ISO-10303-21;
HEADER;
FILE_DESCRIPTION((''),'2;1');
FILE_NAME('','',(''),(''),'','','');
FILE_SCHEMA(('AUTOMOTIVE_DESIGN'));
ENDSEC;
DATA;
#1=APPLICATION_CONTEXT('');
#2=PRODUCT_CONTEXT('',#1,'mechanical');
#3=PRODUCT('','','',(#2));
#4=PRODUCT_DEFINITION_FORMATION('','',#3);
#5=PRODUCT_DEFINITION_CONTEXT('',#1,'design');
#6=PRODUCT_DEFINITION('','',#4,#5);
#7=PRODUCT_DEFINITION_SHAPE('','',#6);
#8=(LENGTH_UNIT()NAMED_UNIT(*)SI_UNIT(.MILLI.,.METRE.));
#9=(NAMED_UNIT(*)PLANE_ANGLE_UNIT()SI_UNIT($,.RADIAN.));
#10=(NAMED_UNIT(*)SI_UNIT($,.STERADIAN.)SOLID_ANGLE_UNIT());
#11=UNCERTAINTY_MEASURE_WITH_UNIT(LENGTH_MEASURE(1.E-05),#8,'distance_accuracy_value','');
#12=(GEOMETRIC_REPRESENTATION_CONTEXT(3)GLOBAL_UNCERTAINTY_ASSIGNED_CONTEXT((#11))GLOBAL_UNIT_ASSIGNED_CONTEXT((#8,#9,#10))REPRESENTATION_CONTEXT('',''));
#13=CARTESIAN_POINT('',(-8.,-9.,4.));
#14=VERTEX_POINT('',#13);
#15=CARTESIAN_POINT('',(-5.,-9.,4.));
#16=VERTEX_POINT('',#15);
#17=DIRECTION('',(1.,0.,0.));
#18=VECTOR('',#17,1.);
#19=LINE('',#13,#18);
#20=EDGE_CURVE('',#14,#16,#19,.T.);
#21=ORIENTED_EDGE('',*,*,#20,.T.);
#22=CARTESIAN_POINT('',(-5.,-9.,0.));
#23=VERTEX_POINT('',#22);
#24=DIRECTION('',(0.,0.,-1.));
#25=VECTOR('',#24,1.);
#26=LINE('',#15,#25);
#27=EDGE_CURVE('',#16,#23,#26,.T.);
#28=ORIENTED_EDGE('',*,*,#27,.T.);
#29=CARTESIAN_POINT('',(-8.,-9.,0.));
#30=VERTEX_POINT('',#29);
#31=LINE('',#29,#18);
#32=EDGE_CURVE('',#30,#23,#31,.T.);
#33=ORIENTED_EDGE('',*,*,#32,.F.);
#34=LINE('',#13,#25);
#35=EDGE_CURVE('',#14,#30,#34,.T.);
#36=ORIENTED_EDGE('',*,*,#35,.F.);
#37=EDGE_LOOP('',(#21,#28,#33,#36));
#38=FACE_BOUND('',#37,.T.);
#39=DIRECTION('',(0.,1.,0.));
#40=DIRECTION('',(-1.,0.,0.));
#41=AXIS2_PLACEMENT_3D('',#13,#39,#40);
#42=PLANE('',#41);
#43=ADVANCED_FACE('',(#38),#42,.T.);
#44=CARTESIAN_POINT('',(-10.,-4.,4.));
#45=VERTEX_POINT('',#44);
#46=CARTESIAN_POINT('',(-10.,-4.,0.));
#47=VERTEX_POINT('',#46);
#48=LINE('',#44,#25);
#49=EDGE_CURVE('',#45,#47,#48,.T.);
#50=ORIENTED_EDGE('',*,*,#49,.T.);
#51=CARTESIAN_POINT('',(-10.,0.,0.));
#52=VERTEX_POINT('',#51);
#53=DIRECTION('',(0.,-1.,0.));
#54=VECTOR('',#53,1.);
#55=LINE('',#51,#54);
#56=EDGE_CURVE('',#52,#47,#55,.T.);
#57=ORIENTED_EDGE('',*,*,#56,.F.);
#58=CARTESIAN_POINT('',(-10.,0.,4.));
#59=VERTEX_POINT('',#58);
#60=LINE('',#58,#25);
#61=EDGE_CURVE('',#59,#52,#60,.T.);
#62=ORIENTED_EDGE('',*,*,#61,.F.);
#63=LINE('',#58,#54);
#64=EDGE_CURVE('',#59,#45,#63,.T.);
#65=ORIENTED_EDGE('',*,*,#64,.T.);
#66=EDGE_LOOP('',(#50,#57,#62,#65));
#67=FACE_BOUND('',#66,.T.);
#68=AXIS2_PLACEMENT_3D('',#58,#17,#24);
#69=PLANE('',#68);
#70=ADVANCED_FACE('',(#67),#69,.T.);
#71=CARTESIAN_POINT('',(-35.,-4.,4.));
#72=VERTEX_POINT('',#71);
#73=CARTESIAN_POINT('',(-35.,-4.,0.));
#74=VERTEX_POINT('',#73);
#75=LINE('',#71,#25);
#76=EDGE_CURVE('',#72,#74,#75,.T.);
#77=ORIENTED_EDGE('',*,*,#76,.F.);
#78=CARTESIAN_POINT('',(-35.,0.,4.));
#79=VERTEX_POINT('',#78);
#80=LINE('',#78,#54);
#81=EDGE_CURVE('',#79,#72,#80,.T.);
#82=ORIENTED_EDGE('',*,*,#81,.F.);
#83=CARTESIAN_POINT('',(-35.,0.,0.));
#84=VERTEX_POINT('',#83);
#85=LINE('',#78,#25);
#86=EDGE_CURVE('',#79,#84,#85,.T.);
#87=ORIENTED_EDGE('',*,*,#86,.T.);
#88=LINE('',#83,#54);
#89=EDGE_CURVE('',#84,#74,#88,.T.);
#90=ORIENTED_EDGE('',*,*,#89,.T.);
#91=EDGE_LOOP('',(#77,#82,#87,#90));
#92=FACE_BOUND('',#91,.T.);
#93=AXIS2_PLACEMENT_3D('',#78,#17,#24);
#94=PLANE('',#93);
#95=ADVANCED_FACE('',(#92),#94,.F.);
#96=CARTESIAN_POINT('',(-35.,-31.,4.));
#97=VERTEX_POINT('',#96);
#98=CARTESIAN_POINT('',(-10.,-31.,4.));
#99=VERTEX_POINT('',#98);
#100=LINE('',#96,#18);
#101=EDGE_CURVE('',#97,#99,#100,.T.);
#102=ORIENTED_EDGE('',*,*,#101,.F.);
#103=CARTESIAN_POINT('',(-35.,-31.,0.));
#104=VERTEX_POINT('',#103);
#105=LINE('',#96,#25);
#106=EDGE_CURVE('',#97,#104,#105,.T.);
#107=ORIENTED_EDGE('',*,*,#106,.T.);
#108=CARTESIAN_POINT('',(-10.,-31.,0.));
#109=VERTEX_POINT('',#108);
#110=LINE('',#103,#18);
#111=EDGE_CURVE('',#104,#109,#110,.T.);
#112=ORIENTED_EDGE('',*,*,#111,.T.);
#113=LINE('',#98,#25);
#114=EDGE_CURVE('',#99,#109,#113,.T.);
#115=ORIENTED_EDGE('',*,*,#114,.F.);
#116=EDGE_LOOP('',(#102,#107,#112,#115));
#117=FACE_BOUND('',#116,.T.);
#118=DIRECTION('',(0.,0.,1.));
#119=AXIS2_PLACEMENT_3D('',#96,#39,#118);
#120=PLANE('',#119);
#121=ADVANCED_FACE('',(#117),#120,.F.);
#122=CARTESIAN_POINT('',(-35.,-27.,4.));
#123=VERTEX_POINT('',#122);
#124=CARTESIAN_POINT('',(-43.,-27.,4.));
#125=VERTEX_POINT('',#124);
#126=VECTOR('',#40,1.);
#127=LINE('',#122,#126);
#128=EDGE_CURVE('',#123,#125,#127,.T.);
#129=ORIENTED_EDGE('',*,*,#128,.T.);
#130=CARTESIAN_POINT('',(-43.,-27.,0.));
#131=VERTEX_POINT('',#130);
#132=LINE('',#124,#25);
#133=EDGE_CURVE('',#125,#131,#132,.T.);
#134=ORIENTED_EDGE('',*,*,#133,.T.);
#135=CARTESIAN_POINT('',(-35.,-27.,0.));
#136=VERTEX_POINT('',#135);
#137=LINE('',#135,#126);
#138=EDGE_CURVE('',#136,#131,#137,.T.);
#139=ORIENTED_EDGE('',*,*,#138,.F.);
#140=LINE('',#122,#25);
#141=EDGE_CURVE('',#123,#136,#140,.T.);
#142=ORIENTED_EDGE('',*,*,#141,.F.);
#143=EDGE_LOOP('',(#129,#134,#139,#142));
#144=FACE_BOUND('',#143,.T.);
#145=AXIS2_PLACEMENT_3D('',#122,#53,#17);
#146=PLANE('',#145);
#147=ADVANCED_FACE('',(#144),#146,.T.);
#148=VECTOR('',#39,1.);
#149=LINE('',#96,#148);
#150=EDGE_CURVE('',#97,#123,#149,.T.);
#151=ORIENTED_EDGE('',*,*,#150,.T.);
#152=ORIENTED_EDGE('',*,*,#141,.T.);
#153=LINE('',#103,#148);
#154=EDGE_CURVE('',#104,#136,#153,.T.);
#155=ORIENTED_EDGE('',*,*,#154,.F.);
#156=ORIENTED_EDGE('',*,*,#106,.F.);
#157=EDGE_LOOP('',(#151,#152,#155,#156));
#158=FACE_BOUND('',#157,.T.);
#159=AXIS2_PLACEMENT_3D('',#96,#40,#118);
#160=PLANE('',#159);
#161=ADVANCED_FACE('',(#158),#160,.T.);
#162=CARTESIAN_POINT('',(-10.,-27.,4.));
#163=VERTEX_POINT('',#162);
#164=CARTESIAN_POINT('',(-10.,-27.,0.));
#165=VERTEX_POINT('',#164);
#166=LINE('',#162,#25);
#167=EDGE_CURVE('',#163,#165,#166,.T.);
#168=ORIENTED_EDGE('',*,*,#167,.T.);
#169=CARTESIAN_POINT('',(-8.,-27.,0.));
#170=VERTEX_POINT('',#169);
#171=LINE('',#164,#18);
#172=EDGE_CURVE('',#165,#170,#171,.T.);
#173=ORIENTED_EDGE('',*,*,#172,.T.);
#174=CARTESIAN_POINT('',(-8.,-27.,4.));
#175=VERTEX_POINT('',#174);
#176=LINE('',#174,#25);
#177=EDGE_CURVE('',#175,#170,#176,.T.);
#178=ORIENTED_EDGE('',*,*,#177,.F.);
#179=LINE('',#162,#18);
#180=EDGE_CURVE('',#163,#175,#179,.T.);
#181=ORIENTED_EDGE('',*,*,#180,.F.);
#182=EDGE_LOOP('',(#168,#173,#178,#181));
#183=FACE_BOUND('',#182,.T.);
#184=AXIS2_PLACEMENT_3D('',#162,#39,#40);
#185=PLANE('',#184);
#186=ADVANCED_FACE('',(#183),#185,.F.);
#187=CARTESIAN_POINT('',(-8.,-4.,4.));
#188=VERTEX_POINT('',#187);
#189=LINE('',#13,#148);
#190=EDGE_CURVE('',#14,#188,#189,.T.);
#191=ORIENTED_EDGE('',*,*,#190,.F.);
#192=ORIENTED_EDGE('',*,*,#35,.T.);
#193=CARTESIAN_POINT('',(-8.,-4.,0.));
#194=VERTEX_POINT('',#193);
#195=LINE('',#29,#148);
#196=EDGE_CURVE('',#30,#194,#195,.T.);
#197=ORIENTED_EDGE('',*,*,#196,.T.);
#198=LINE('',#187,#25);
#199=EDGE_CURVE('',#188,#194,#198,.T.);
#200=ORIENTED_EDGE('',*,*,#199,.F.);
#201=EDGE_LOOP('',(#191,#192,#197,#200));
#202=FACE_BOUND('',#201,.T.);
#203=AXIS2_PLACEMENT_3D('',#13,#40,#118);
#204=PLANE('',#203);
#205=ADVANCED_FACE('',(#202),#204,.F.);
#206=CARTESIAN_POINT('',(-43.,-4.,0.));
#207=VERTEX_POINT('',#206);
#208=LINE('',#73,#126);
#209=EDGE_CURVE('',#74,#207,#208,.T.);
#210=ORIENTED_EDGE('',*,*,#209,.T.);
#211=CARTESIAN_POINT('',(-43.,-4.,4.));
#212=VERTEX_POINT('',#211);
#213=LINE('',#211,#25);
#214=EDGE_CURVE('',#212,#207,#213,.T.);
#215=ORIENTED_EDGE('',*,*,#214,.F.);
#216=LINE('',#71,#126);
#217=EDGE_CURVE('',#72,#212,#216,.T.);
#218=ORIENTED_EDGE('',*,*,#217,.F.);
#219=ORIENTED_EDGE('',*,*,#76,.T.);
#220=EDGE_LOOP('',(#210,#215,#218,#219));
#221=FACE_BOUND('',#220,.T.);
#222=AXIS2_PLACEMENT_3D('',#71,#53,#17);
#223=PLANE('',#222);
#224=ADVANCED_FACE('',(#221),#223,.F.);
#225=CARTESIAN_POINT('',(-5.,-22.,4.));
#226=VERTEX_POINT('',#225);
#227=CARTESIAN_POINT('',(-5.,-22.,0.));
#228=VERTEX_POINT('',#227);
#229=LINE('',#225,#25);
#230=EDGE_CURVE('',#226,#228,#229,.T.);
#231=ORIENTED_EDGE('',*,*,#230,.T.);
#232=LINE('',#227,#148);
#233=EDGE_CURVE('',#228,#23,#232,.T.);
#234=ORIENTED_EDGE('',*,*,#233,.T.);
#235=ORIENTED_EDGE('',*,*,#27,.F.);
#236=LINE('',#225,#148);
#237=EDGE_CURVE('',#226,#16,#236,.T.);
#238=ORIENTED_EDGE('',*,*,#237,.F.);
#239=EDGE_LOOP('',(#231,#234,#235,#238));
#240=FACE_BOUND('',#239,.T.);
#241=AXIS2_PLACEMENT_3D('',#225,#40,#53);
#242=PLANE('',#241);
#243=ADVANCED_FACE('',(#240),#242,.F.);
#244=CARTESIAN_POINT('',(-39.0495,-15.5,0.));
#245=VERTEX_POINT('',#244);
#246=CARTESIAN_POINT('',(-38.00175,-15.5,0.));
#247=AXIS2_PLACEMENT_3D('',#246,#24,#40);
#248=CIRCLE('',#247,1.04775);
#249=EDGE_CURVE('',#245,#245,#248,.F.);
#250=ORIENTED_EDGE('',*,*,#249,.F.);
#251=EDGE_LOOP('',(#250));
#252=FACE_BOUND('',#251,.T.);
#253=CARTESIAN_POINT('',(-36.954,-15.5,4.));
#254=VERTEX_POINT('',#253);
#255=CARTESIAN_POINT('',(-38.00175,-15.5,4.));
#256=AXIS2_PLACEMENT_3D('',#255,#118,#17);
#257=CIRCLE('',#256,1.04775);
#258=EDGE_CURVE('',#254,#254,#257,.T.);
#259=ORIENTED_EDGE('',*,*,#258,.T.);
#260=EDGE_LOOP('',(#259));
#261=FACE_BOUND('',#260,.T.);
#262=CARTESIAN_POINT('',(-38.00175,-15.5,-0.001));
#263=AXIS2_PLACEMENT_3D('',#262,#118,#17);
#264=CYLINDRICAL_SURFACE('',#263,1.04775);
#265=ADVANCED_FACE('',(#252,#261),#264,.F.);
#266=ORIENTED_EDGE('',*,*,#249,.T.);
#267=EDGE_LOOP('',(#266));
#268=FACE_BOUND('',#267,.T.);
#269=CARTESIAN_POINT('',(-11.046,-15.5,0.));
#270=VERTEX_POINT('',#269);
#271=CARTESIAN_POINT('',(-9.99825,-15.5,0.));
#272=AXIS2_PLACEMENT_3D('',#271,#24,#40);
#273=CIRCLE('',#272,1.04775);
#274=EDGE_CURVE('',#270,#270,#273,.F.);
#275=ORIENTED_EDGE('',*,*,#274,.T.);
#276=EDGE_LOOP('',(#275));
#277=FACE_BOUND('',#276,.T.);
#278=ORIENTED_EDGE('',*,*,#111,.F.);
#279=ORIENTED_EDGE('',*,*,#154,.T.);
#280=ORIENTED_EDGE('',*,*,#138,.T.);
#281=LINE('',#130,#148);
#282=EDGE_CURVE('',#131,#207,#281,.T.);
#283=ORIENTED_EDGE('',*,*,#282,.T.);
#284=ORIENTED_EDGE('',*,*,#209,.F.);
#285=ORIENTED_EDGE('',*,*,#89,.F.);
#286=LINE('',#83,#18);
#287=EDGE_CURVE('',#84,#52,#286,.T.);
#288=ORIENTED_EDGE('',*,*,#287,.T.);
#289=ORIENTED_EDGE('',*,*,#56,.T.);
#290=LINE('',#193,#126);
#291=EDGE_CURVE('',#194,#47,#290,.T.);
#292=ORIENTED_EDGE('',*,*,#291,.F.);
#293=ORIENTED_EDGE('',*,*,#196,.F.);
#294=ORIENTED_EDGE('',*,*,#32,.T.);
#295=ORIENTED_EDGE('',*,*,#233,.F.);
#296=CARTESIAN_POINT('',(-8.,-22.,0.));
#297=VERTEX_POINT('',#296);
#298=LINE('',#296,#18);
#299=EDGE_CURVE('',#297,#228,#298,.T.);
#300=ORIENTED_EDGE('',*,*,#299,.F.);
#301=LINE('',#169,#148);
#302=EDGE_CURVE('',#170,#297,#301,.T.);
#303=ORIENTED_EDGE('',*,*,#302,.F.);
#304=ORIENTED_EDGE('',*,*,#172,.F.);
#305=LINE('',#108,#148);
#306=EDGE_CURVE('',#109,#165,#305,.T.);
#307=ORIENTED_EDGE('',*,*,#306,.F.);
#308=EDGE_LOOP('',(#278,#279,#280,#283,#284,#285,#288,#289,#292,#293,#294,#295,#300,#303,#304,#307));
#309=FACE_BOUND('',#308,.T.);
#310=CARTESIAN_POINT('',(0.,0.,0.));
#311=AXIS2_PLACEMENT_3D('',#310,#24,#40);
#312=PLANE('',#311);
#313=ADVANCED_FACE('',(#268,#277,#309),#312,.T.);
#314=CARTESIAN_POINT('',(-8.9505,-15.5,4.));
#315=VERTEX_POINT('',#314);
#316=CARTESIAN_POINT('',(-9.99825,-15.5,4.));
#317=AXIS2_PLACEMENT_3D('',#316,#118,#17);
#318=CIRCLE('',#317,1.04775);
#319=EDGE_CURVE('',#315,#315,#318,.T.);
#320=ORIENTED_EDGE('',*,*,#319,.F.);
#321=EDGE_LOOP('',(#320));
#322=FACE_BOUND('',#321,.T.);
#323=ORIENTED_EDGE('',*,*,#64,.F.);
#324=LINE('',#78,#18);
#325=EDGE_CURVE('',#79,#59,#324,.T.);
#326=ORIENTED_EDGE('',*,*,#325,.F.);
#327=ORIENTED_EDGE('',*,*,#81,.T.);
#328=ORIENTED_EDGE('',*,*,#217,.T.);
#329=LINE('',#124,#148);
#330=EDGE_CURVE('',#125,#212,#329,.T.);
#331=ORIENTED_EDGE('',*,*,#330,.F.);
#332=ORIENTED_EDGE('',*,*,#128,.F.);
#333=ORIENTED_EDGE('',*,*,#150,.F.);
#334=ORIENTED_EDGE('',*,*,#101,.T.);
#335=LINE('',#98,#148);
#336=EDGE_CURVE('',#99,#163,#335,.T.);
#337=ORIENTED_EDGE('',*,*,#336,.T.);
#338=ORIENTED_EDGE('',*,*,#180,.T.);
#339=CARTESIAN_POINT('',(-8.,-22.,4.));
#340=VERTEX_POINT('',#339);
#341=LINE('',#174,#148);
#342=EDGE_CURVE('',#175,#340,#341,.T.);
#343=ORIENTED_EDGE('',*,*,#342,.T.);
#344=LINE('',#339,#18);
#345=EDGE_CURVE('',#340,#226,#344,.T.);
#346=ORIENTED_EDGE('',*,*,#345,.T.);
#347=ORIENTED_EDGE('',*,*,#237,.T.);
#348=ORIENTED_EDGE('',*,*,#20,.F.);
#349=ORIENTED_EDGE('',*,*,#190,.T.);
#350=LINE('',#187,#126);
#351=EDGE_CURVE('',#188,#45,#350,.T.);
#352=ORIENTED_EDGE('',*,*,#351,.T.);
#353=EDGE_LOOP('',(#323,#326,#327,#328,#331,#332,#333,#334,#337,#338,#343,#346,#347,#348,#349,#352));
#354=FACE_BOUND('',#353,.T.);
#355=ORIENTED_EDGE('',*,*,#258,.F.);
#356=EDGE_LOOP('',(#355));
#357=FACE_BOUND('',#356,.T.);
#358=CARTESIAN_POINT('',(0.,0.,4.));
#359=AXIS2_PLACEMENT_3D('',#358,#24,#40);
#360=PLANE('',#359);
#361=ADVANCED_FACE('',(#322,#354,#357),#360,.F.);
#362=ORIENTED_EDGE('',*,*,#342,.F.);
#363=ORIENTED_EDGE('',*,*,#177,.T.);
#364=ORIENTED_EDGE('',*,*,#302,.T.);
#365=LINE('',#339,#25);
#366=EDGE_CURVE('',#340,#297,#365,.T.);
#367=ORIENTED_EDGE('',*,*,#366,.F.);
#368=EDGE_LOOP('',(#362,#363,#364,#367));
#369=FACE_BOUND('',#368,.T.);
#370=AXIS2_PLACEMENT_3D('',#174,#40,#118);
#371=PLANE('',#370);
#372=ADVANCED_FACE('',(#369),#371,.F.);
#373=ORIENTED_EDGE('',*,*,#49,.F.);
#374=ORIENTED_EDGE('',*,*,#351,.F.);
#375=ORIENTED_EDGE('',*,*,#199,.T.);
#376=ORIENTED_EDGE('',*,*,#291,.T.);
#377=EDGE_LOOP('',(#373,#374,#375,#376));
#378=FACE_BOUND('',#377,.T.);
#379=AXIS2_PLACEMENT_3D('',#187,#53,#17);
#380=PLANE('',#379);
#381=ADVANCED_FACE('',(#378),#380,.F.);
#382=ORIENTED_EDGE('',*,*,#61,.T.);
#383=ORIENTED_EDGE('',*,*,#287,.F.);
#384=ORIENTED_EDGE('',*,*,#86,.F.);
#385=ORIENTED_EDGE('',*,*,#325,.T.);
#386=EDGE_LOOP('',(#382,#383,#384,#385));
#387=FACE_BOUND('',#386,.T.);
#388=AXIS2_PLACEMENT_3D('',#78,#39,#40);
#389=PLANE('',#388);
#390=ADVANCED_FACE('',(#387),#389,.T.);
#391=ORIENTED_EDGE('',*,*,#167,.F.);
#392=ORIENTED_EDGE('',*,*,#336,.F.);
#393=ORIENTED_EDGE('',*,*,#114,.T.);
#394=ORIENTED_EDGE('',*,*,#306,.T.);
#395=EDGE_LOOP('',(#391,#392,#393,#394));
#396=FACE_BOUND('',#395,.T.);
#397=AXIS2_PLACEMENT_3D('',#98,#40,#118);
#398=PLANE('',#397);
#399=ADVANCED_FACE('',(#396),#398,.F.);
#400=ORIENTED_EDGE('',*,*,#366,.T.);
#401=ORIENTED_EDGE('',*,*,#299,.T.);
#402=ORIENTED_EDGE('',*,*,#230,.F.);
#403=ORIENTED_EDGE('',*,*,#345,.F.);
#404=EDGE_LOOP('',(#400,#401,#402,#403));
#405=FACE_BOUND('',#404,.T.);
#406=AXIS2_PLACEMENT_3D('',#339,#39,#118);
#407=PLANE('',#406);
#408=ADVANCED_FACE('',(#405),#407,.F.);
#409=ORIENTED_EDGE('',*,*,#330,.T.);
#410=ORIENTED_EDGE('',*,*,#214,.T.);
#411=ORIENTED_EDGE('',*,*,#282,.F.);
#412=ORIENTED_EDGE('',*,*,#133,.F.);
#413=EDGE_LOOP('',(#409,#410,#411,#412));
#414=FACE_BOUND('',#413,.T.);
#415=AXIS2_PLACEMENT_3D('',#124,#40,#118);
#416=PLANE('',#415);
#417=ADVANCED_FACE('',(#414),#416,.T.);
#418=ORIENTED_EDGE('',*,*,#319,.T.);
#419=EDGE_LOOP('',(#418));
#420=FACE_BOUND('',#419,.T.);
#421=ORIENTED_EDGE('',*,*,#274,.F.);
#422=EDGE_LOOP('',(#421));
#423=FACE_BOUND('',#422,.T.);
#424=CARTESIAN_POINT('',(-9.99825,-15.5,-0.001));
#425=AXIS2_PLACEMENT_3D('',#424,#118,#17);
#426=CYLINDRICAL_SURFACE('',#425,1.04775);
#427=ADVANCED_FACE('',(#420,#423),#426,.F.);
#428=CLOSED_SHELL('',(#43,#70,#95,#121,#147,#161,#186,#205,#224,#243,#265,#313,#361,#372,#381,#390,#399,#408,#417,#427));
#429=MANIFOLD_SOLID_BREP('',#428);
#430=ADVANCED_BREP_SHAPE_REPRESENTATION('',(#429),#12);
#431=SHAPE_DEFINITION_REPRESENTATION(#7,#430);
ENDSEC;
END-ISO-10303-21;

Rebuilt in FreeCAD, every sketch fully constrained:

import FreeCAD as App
import Part
import Sketcher
from FreeCAD import Vector

doc = App.newDocument("Part")
body = doc.addObject("PartDesign::Body", "Body")

# Sketch on XY plane
sketch1 = body.newObject("Sketcher::SketchObject", "Sketch")
sketch1.AttachmentSupport = (doc.getObject("XY_Plane"), [""])
sketch1.MapMode = "FlatFace"
sketch1.addGeometry([
    Part.LineSegment(Vector(-35, 0, 0), Vector(-35, -4, 0)),  # 0
    Part.LineSegment(Vector(-35, -4, 0), Vector(-43, -4, 0)),  # 1
    Part.LineSegment(Vector(-43, -4, 0), Vector(-43, -27, 0)),  # 2
    Part.LineSegment(Vector(-43, -27, 0), Vector(-35, -27, 0)),  # 3
    Part.LineSegment(Vector(-35, -27, 0), Vector(-35, -31, 0)),  # 4
    Part.LineSegment(Vector(-35, -31, 0), Vector(-10, -31, 0)),  # 5
    Part.LineSegment(Vector(-10, -31, 0), Vector(-10, -27, 0)),  # 6
    Part.LineSegment(Vector(-10, -27, 0), Vector(-8, -27, 0)),  # 7
    Part.LineSegment(Vector(-8, -27, 0), Vector(-8, -22, 0)),  # 8
    Part.LineSegment(Vector(-8, -22, 0), Vector(-5, -22, 0)),  # 9
    Part.LineSegment(Vector(-5, -22, 0), Vector(-5, -9, 0)),  # 10
    Part.LineSegment(Vector(-5, -9, 0), Vector(-8, -9, 0)),  # 11
    Part.LineSegment(Vector(-8, -9, 0), Vector(-8, -4, 0)),  # 12
    Part.LineSegment(Vector(-8, -4, 0), Vector(-10, -4, 0)),  # 13
    Part.LineSegment(Vector(-10, -4, 0), Vector(-10, 0, 0)),  # 14
    Part.LineSegment(Vector(-10, 0, 0), Vector(-35, 0, 0)),  # 15
], False)
sketch1.addConstraint([
    Sketcher.Constraint("Coincident", 0, 2, 1, 1),
    Sketcher.Constraint("Coincident", 1, 2, 2, 1),
    Sketcher.Constraint("Coincident", 2, 2, 3, 1),
    Sketcher.Constraint("Coincident", 3, 2, 4, 1),
    Sketcher.Constraint("Coincident", 4, 2, 5, 1),
    Sketcher.Constraint("Coincident", 5, 2, 6, 1),
    Sketcher.Constraint("Coincident", 6, 2, 7, 1),
    Sketcher.Constraint("Coincident", 7, 2, 8, 1),
    Sketcher.Constraint("Coincident", 8, 2, 9, 1),
    Sketcher.Constraint("Coincident", 9, 2, 10, 1),
    Sketcher.Constraint("Coincident", 10, 2, 11, 1),
    Sketcher.Constraint("Coincident", 11, 2, 12, 1),
    Sketcher.Constraint("Coincident", 12, 2, 13, 1),
    Sketcher.Constraint("Coincident", 13, 2, 14, 1),
    Sketcher.Constraint("Coincident", 14, 2, 15, 1),
    Sketcher.Constraint("Coincident", 15, 2, 0, 1),
    Sketcher.Constraint("Vertical", 0),
    Sketcher.Constraint("Horizontal", 1),
    Sketcher.Constraint("Vertical", 2),
    Sketcher.Constraint("Horizontal", 3),
    Sketcher.Constraint("Vertical", 4),
    Sketcher.Constraint("Horizontal", 5),
    Sketcher.Constraint("Vertical", 6),
    Sketcher.Constraint("Horizontal", 7),
    Sketcher.Constraint("Vertical", 8),
    Sketcher.Constraint("Horizontal", 9),
    Sketcher.Constraint("Vertical", 10),
    Sketcher.Constraint("Horizontal", 11),
    Sketcher.Constraint("Vertical", 12),
    Sketcher.Constraint("Horizontal", 13),
    Sketcher.Constraint("Vertical", 14),
    Sketcher.Constraint("Horizontal", 15),
    Sketcher.Constraint("PointOnObject", 14, 2, -1),
    Sketcher.Constraint("Horizontal", 3, 2, 6, 2),
    Sketcher.Constraint("Horizontal", 1, 2, 12, 2),
    Sketcher.Constraint("Vertical", 0, 2, 3, 2),
    Sketcher.Constraint("Vertical", 8, 2, 11, 2),
    Sketcher.Constraint("Vertical", 6, 2, 13, 2),
    Sketcher.Constraint("Equal", 0, 4),
    Sketcher.Constraint("Equal", 8, 12),
    Sketcher.Constraint("DistanceX", 1, 2, 1, 1, 8.0),
    Sketcher.Constraint("DistanceX", 5, 1, 5, 2, 25.0),
    Sketcher.Constraint("DistanceX", 7, 1, 7, 2, 2.0),
    Sketcher.Constraint("DistanceX", 9, 1, 9, 2, 3.0),
    Sketcher.Constraint("DistanceY", 0, 2, 0, 1, 4.0),
    Sketcher.Constraint("DistanceY", 2, 2, 2, 1, 23.0),
    Sketcher.Constraint("DistanceY", 8, 1, 8, 2, 5.0),
    Sketcher.Constraint("DistanceX", 0, 2, -1, 1, 35.0),
])
pad1 = body.newObject("PartDesign::Pad", "Pad")
pad1.Profile = sketch1
pad1.Length = 4

# Sketch on XY plane
sketch2 = body.newObject("Sketcher::SketchObject", "Sketch001")
sketch2.AttachmentSupport = (doc.getObject("XY_Plane"), [""])
sketch2.MapMode = "FlatFace"
sketch2.AttachmentOffset = App.Placement(Vector(0, 0, 4), App.Rotation())
sketch2.addGeometry(Part.Circle(Vector(-38, -15.5, 0), Vector(0, 0, 1), 1), False)
sketch2.addConstraint([
    Sketcher.Constraint("Diameter", 0, 2.0955),
    Sketcher.Constraint("DistanceY", 0, 3, -1, 1, 15.5),
    Sketcher.Constraint("DistanceX", 0, 3, -1, 1, 38.00175),
])
pocket1 = body.newObject("PartDesign::Pocket", "Pocket")
pocket1.Profile = sketch2
pocket1.Type = "UpToFirst"

# Sketch on XY plane
sketch3 = body.newObject("Sketcher::SketchObject", "Sketch002")
sketch3.AttachmentSupport = (doc.getObject("XY_Plane"), [""])
sketch3.MapMode = "FlatFace"
sketch3.AttachmentOffset = App.Placement(Vector(0, 0, 4), App.Rotation())
sketch3.addGeometry(Part.Circle(Vector(-10, -15.5, 0), Vector(0, 0, 1), 1), False)
sketch3.addConstraint([
    Sketcher.Constraint("Diameter", 0, 2.0955),
    Sketcher.Constraint("DistanceY", 0, 3, -1, 1, 15.5),
    Sketcher.Constraint("DistanceX", 0, 3, -1, 1, 9.99825),
])
pocket2 = body.newObject("PartDesign::Pocket", "Pocket001")
pocket2.Profile = sketch3
pocket2.Type = "UpToFirst"

doc.recompute()
